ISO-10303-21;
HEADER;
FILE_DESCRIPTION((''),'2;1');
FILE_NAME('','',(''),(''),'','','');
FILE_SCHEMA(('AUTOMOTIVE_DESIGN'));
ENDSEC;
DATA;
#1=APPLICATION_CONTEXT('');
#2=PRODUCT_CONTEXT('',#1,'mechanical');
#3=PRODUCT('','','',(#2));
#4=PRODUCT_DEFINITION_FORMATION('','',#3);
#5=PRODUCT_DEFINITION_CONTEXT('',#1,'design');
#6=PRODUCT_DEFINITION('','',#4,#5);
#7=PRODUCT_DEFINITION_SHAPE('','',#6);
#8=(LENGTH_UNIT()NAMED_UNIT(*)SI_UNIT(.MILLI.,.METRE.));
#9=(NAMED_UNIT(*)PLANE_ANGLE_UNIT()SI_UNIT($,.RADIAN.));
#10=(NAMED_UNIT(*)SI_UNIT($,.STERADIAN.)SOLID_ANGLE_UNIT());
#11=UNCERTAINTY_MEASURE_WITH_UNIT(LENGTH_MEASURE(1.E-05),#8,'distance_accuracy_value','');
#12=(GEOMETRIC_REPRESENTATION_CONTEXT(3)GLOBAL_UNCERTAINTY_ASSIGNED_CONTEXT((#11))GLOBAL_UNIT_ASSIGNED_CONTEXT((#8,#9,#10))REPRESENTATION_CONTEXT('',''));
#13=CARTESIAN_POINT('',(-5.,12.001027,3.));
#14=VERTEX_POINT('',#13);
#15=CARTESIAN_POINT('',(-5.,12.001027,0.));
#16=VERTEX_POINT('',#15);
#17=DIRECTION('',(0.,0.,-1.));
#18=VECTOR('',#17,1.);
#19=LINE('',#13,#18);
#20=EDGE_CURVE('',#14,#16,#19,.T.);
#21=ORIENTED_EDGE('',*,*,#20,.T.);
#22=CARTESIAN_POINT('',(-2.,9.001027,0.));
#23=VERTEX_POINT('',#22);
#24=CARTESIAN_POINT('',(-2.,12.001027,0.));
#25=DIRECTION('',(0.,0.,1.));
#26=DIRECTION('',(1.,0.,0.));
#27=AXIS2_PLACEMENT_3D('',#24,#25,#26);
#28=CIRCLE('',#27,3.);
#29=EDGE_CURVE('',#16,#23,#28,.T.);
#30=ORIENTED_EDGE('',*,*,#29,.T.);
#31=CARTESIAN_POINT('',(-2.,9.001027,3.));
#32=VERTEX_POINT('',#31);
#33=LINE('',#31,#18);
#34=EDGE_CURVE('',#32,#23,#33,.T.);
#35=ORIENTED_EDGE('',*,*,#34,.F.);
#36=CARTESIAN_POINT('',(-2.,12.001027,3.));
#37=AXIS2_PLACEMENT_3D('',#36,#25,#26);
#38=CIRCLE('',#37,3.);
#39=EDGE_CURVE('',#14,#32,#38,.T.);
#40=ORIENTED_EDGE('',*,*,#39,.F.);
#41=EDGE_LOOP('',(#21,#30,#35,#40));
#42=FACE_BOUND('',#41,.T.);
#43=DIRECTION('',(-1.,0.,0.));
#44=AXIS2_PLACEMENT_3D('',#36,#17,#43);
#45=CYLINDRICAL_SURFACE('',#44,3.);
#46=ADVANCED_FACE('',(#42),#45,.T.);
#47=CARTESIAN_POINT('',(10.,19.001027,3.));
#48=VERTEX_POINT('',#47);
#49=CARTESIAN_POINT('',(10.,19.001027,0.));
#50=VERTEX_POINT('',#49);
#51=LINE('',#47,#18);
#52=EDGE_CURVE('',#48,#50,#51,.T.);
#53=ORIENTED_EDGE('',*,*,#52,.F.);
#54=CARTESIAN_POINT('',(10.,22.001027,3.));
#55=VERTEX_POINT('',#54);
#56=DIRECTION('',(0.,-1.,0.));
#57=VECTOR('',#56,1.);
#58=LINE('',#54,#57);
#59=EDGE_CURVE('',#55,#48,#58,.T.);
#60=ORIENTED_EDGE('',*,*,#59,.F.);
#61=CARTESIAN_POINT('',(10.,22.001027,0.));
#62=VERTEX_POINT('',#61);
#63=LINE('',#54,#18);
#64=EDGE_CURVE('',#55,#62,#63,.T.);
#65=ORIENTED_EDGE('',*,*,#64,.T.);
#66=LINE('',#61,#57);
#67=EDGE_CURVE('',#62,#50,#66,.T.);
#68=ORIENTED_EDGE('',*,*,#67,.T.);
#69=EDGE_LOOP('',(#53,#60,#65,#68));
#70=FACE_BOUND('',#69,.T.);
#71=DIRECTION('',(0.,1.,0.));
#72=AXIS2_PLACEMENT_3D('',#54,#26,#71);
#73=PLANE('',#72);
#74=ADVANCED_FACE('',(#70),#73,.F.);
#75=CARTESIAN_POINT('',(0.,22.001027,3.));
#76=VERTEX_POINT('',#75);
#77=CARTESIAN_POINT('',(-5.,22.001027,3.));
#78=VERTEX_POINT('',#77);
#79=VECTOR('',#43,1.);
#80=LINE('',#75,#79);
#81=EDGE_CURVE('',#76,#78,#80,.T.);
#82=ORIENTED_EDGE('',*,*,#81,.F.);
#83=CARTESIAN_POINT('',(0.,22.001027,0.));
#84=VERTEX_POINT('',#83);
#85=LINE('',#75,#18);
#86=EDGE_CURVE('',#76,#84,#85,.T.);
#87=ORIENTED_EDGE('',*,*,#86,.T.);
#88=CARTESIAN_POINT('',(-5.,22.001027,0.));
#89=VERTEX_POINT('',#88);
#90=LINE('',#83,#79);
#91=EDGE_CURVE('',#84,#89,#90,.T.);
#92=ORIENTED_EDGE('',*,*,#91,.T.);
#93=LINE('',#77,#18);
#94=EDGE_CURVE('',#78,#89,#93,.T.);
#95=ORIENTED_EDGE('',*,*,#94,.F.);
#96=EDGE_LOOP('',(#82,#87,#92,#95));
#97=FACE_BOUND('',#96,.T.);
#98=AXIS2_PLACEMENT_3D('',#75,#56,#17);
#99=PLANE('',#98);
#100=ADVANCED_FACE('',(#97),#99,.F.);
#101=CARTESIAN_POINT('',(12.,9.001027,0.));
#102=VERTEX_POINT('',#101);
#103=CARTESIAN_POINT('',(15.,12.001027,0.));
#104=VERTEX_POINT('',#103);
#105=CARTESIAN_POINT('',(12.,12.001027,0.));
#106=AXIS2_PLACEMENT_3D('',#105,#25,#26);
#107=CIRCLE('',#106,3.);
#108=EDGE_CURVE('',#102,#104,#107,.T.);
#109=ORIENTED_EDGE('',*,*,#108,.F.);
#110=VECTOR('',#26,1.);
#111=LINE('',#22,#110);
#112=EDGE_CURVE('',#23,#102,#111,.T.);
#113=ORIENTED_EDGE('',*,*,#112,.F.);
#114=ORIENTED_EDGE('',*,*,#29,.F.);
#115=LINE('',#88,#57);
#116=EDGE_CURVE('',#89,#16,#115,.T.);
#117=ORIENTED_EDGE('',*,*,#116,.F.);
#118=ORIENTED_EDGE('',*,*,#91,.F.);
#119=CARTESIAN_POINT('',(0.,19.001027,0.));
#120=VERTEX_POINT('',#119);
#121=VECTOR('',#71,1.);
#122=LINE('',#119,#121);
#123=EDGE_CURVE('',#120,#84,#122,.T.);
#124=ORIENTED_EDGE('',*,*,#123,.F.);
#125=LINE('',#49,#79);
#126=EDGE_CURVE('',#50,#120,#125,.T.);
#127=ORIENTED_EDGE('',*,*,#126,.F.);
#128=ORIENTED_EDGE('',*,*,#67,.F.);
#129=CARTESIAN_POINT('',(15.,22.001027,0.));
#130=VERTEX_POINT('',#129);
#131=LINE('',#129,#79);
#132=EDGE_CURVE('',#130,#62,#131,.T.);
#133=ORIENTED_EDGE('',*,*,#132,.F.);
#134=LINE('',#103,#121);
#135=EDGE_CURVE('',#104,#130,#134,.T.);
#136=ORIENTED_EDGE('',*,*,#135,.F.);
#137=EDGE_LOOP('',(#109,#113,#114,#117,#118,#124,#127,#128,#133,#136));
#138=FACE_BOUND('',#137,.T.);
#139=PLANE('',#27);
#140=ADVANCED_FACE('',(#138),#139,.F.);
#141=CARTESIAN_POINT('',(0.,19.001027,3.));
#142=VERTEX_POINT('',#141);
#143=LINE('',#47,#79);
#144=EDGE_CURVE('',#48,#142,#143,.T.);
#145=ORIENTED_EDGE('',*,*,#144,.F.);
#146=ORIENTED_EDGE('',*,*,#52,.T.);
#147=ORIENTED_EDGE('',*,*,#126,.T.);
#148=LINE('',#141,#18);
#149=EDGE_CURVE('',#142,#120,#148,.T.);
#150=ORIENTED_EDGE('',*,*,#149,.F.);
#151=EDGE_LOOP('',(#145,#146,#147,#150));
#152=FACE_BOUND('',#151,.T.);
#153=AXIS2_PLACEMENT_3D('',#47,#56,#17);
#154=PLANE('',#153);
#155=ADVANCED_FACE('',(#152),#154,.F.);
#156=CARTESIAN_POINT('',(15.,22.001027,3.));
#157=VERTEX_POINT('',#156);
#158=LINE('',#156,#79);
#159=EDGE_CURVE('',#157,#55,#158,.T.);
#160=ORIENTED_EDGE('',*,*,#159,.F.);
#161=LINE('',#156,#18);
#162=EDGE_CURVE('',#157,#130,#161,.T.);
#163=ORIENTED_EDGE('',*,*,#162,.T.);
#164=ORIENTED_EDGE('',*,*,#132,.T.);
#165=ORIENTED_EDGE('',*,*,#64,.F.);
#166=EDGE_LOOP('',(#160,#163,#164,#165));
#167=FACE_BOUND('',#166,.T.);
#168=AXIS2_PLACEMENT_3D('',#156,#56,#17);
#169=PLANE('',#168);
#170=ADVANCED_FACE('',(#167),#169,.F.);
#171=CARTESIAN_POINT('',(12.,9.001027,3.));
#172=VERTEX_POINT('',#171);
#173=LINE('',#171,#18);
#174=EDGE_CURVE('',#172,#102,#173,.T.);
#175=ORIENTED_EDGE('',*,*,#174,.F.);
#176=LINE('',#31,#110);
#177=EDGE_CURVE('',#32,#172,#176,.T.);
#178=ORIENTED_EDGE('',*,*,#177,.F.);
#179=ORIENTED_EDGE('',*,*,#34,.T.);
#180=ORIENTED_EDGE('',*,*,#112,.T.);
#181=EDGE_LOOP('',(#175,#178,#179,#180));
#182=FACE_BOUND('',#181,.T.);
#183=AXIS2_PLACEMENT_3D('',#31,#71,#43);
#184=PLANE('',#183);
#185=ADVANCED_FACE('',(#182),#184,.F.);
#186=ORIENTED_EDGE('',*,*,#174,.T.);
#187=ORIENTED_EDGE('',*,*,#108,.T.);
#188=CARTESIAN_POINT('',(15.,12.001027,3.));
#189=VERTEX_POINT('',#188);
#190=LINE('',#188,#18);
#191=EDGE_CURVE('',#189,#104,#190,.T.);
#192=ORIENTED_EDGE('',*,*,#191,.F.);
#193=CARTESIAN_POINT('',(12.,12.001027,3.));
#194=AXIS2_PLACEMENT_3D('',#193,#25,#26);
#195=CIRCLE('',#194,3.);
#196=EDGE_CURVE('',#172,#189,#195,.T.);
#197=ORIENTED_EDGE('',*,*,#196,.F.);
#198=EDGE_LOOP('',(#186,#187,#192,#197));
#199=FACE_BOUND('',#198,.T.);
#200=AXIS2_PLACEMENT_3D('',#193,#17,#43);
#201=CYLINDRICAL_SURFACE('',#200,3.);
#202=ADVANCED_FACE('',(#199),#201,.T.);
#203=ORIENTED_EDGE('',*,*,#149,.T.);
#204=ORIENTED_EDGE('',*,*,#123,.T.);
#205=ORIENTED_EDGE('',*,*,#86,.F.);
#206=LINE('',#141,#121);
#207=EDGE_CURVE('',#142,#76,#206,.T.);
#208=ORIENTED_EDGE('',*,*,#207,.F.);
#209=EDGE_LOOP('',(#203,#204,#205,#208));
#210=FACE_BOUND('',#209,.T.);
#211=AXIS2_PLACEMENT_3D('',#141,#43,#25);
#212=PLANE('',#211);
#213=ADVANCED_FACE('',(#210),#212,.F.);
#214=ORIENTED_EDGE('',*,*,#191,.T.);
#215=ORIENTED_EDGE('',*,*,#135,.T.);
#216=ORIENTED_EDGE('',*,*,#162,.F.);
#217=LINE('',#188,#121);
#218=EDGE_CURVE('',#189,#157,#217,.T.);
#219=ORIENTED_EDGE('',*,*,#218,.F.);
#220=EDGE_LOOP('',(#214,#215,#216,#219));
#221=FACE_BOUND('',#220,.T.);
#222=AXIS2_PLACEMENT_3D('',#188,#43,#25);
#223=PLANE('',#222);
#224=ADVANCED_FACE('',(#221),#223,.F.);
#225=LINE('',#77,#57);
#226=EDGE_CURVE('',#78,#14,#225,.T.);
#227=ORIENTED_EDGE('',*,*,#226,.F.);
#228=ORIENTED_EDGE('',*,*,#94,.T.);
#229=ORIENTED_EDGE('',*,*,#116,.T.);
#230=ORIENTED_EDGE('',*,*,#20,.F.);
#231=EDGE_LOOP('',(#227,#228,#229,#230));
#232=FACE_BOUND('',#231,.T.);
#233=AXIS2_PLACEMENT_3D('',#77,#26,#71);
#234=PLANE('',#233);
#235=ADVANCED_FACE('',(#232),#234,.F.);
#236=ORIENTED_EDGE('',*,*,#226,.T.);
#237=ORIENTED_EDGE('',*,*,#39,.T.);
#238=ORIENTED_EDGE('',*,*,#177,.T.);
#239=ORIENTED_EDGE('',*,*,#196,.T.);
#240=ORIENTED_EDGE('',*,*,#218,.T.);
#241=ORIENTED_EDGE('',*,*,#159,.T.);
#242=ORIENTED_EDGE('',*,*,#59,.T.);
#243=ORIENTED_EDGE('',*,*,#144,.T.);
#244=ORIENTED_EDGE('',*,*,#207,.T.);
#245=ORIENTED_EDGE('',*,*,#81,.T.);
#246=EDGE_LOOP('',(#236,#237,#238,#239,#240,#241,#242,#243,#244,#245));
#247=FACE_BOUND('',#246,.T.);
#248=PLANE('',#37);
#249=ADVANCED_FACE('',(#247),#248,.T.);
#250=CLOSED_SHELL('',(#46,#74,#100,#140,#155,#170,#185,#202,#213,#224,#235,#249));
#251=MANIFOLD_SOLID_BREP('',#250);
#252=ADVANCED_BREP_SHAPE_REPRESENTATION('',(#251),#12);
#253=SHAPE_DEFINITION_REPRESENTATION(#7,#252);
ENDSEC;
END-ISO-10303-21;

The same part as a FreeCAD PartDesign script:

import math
import FreeCAD as App
import Part
import Sketcher
from FreeCAD import Vector

doc = App.newDocument("Part")
params = doc.addObject("Spreadsheet::Sheet", "Params")
for row, (alias, value) in enumerate([
    ("sketch1_radius", "3 mm"),
    ("sketch1_width", "5 mm"),
    ("sketch1_width2", "14 mm"),
    ("sketch1_height", "3 mm"),
    ("pad1_length", "3 mm"),
], start=1):
    params.set(f"A{row}", alias)
    params.set(f"B{row}", "=" + value)
    params.setAlias(f"B{row}", alias)

body = doc.addObject("PartDesign::Body", "Body")

# Sketch on XY plane
sketch1 = body.newObject("Sketcher::SketchObject", "Sketch")
sketch1.AttachmentSupport = (doc.getObject("XY_Plane"), [""])
sketch1.MapMode = "FlatFace"
sketch1.addGeometry(Part.LineSegment(Vector(0, 22, 0), Vector(-5, 22, 0)), False)
sketch1.addGeometry(Part.LineSegment(Vector(-5, 22, 0), Vector(-5, 12, 0)), False)
sketch1.addGeometry(Part.ArcOfCircle(Part.Circle(Vector(-2, 12, 0), Vector(0, 0, 1), 3), math.radians(180), math.radians(270)), False)
sketch1.addGeometry(Part.LineSegment(Vector(-2, 9, 0), Vector(12, 9, 0)), False)
sketch1.addGeometry(Part.ArcOfCircle(Part.Circle(Vector(12, 12, 0), Vector(0, 0, 1), 3), math.radians(-90), math.radians(0)), False)
sketch1.addGeometry(Part.LineSegment(Vector(15, 12, 0), Vector(15, 22, 0)), False)
sketch1.addGeometry(Part.LineSegment(Vector(15, 22, 0), Vector(10, 22, 0)), False)
sketch1.addGeometry(Part.LineSegment(Vector(10, 22, 0), Vector(10, 19, 0)), False)
sketch1.addGeometry(Part.LineSegment(Vector(10, 19, 0), Vector(0, 19, 0)), False)
sketch1.addGeometry(Part.LineSegment(Vector(0, 19, 0), Vector(0, 22, 0)), False)
sketch1.addConstraint(Sketcher.Constraint("Coincident", 0, 2, 1, 1))
sketch1.addConstraint(Sketcher.Constraint("Tangent", 1, 2, 2, 1))
sketch1.addConstraint(Sketcher.Constraint("Tangent", 2, 2, 3, 1))
sketch1.addConstraint(Sketcher.Constraint("Tangent", 3, 2, 4, 1))
sketch1.addConstraint(Sketcher.Constraint("Tangent", 4, 2, 5, 1))
sketch1.addConstraint(Sketcher.Constraint("Coincident", 5, 2, 6, 1))
sketch1.addConstraint(Sketcher.Constraint("Coincident", 6, 2, 7, 1))
sketch1.addConstraint(Sketcher.Constraint("Coincident", 7, 2, 8, 1))
sketch1.addConstraint(Sketcher.Constraint("Coincident", 8, 2, 9, 1))
sketch1.addConstraint(Sketcher.Constraint("Coincident", 9, 2, 0, 1))
sketch1.addConstraint(Sketcher.Constraint("Horizontal", 0))
sketch1.addConstraint(Sketcher.Constraint("Vertical", 1))
sketch1.addConstraint(Sketcher.Constraint("Horizontal", 3))
sketch1.addConstraint(Sketcher.Constraint("Vertical", 5))
sketch1.addConstraint(Sketcher.Constraint("Horizontal", 6))
sketch1.addConstraint(Sketcher.Constraint("Vertical", 7))
sketch1.addConstraint(Sketcher.Constraint("Horizontal", 8))
sketch1.addConstraint(Sketcher.Constraint("Vertical", 9))
sketch1.addConstraint(Sketcher.Constraint("Equal", 2, 4))
sketch1.addConstraint(Sketcher.Constraint("PointOnObject", 8, 2, -2))
sketch1.addConstraint(Sketcher.Constraint("Horizontal", 0, 2, 5, 2))
sketch1.addConstraint(Sketcher.Constraint("Equal", 0, 6))
sketch1.addConstraint(Sketcher.Constraint("Equal", 8, 1))
sketch1.addConstraint(Sketcher.Constraint("Radius", 2, 3.0))
sketch1.addConstraint(Sketcher.Constraint("DistanceX", 0, 2, 0, 1, 5.0))
sketch1.addConstraint(Sketcher.Constraint("DistanceX", 3, 1, 3, 2, 14.0))
sketch1.addConstraint(Sketcher.Constraint("DistanceY", 7, 2, 7, 1, 3.0))
sketch1.addConstraint(Sketcher.Constraint("DistanceY", -1, 1, 2, 3, 12.001027))
sketch1.setExpression("Constraints[23]", "Params.sketch1_radius")
sketch1.setExpression("Constraints[24]", "Params.sketch1_width")
sketch1.setExpression("Constraints[25]", "Params.sketch1_width2")
sketch1.setExpression("Constraints[26]", "Params.sketch1_height")
pad1 = body.newObject("PartDesign::Pad", "Pad")
pad1.Profile = sketch1
pad1.setExpression("Length", "Params.pad1_length")

doc.recompute()
